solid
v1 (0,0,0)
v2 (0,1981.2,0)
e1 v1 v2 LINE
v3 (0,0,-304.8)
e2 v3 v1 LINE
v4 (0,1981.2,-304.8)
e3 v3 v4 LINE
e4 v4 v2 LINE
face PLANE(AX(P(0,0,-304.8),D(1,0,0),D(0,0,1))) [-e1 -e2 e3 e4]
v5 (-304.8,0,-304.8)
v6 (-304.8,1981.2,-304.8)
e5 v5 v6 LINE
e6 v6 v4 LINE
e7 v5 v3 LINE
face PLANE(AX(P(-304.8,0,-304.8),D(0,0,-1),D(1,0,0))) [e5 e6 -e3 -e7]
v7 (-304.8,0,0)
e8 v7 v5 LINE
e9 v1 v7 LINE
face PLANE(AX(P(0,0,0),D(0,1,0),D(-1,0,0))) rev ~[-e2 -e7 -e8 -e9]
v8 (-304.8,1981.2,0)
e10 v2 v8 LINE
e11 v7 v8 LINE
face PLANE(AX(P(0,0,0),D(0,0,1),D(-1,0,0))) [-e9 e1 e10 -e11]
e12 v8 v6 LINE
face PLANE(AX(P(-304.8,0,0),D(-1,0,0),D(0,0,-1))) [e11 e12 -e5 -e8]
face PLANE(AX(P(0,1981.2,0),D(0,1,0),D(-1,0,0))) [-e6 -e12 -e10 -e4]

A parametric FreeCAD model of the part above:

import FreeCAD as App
import Part
import Sketcher
from FreeCAD import Vector
Q = App.Units.Quantity

doc = App.newDocument("Part")
body = doc.addObject("PartDesign::Body", "Body")

sketch1 = doc.addObject("Sketcher::SketchObject", "Sketch")
body.addObject(sketch1)
sketch1.AttachmentSupport = (doc.XZ_Plane, [""])
sketch1.MapMode = "FlatFace"
sketch1.addGeometry(Part.LineSegment(Vector(-305, 0, 0), Vector(0, 0, 0)), False)
sketch1.addGeometry(Part.LineSegment(Vector(0, 0, 0), Vector(0, -305, 0)), False)
sketch1.addGeometry(Part.LineSegment(Vector(0, -305, 0), Vector(-305, -305, 0)), False)
sketch1.addGeometry(Part.LineSegment(Vector(-305, -305, 0), Vector(-305, 0, 0)), False)
sketch1.addConstraint(Sketcher.Constraint("Coincident", 0, 2, 1, 1))
sketch1.addConstraint(Sketcher.Constraint("Coincident", 1, 2, 2, 1))
sketch1.addConstraint(Sketcher.Constraint("Coincident", 2, 2, 3, 1))
sketch1.addConstraint(Sketcher.Constraint("Coincident", 3, 2, 0, 1))
sketch1.addConstraint(Sketcher.Constraint("Horizontal", 0))
sketch1.addConstraint(Sketcher.Constraint("Vertical", 1))
sketch1.addConstraint(Sketcher.Constraint("Horizontal", 2))
sketch1.addConstraint(Sketcher.Constraint("Vertical", 3))
sketch1.addConstraint(Sketcher.Constraint("Coincident", 0, 2, -1, 1))
sketch1.addConstraint(Sketcher.Constraint("Equal", 2, 1))
sketch1.addConstraint(Sketcher.Constraint("DistanceX", 0, 1, 0, 2, Q("12 in")))
pad1 = doc.addObject("PartDesign::Pad", "Pad")
body.addObject(pad1)
pad1.Profile = sketch1
pad1.Length = Q("78 in")
pad1.Reversed = True

doc.recompute()
